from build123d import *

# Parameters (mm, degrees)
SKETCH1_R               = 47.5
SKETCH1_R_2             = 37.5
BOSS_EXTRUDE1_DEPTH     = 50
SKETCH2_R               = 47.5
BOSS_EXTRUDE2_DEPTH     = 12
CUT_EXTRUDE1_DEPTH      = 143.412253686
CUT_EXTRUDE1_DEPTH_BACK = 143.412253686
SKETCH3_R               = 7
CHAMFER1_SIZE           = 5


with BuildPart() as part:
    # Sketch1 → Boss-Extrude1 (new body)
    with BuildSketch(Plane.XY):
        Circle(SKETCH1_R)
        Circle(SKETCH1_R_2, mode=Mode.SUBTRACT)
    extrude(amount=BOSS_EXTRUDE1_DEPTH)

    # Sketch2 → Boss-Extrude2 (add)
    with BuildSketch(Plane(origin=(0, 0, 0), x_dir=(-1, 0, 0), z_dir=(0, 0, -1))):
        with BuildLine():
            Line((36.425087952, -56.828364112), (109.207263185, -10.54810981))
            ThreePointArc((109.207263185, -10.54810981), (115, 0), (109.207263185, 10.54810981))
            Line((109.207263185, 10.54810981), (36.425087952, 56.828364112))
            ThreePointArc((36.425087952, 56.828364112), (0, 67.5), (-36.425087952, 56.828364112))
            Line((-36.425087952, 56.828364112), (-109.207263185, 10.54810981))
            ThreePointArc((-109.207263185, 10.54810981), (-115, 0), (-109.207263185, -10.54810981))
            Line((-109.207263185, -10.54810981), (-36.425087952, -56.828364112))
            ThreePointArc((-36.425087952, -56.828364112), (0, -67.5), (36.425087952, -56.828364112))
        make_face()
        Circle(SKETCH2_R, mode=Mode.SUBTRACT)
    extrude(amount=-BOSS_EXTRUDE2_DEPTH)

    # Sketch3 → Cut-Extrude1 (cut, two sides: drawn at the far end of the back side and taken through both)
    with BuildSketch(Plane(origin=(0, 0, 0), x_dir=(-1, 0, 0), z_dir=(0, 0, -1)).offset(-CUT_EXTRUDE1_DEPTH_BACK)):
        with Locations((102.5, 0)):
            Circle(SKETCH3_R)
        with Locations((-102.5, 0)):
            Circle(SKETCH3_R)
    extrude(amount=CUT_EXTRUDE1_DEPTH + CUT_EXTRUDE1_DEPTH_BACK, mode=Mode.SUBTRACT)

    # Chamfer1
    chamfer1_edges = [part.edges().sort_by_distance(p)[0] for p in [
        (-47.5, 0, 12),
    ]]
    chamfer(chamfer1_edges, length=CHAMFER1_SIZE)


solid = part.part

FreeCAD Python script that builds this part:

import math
import FreeCAD as App
import Part
import Sketcher

V = App.Vector


def edges_at(feature, points):
    """Names of the edges that pass closest to the given points."""
    edges = feature.Shape.Edges
    near = lambda p: min(range(len(edges)), key=lambda i: edges[i].distToShape(Part.Vertex(*p))[0])
    return sorted({f"Edge{near(p) + 1}" for p in points})

doc = App.newDocument("Part")
body = doc.addObject("PartDesign::Body", "Body")

sketch1 = doc.addObject("Sketcher::SketchObject", "Sketch")
body.addObject(sketch1)
sketch1.AttachmentSupport = (doc.XY_Plane, [""])
sketch1.MapMode = "FlatFace"
sketch1.addGeometry(Part.Circle(V(0, 0, 0), V(0, 0, 1), 47.5), False)
sketch1.addGeometry(Part.Circle(V(0, 0, 0), V(0, 0, 1), 37.5), False)
sketch1.addConstraint(Sketcher.Constraint("Coincident", 0, 3, -1, 1))
sketch1.addConstraint(Sketcher.Constraint("Coincident", 1, 3, -1, 1))
sketch1.addConstraint(Sketcher.Constraint("Diameter", 0, 95.0))
sketch1.addConstraint(Sketcher.Constraint("Diameter", 1, 75.0))
pad1 = doc.addObject("PartDesign::Pad", "Pad")
body.addObject(pad1)
pad1.Profile = sketch1
pad1.Length = 50

sketch2 = doc.addObject("Sketcher::SketchObject", "Sketch001")
body.addObject(sketch2)
sketch2.AttachmentSupport = (doc.XY_Plane, [""])
sketch2.MapMode = "FlatFace"
sketch2.addGeometry(Part.LineSegment(V(-36.425088, -56.828364, 0), V(-109.207263, -10.54811, 0)), False)
sketch2.addGeometry(Part.ArcOfCircle(Part.Circle(V(-102.5, 0, 0), V(0, 0, 1), 12.5), math.radians(122.451198), math.radians(237.548802)), False)
sketch2.addGeometry(Part.LineSegment(V(-109.207263, 10.54811, 0), V(-36.425088, 56.828364, 0)), False)
sketch2.addGeometry(Part.ArcOfCircle(Part.Circle(V(0, 0, 0), V(0, 0, 1), 67.5), math.radians(57.341482), math.radians(122.658518)), False)
sketch2.addGeometry(Part.LineSegment(V(36.425088, 56.828364, 0), V(109.207263, 10.54811, 0)), False)
sketch2.addGeometry(Part.ArcOfCircle(Part.Circle(V(102.5, 0, 0), V(0, 0, 1), 12.5), math.radians(-57.548802), math.radians(57.548802)), False)
sketch2.addGeometry(Part.LineSegment(V(109.207263, -10.54811, 0), V(36.425088, -56.828364, 0)), False)
sketch2.addGeometry(Part.ArcOfCircle(Part.Circle(V(0, 0, 0), V(0, 0, 1), 67.5), math.radians(-122.658518), math.radians(-57.341482)), False)
sketch2.addGeometry(Part.Circle(V(0, 0, 0), V(0, 0, 1), 47.5), False)
sketch2.addConstraint(Sketcher.Constraint("Tangent", 0, 2, 1, 2))
sketch2.addConstraint(Sketcher.Constraint("Tangent", 1, 1, 2, 1))
sketch2.addConstraint(Sketcher.Constraint("Coincident", 2, 2, 3, 2))
sketch2.addConstraint(Sketcher.Constraint("Coincident", 3, 1, 4, 1))
sketch2.addConstraint(Sketcher.Constraint("Tangent", 4, 2, 5, 2))
sketch2.addConstraint(Sketcher.Constraint("Tangent", 5, 1, 6, 1))
sketch2.addConstraint(Sketcher.Constraint("Coincident", 6, 2, 7, 2))
sketch2.addConstraint(Sketcher.Constraint("Coincident", 7, 1, 0, 1))
sketch2.addConstraint(Sketcher.Constraint("Coincident", 3, 3, -1, 1))
sketch2.addConstraint(Sketcher.Constraint("Coincident", 7, 3, -1, 1))
sketch2.addConstraint(Sketcher.Constraint("Coincident", 8, 3, -1, 1))
sketch2.addConstraint(Sketcher.Constraint("Equal", 1, 5))
sketch2.addConstraint(Sketcher.Constraint("Equal", 3, 7))
sketch2.addConstraint(Sketcher.Constraint("Symmetric", 1, 3, 5, 3, -1, 1))
sketch2.addConstraint(Sketcher.Constraint("PointOnObject", 1, 3, -1))
sketch2.addConstraint(Sketcher.Constraint("Parallel", 0, 4))
sketch2.addConstraint(Sketcher.Constraint("Parallel", 2, 6))
sketch2.addConstraint(Sketcher.Constraint("Horizontal", 2, 2, 3, 1))
sketch2.addConstraint(Sketcher.Constraint("Diameter", 8, 95.0))
sketch2.addConstraint(Sketcher.Constraint("Radius", 1, 12.5))
sketch2.addConstraint(Sketcher.Constraint("Radius", 3, 67.5))
sketch2.addConstraint(Sketcher.Constraint("DistanceX", 1, 3, 5, 3, 205.0))
sketch2.addConstraint(Sketcher.Constraint("Distance", 0, 86.250258))
pad2 = doc.addObject("PartDesign::Pad", "Pad001")
body.addObject(pad2)
pad2.Profile = sketch2
pad2.Length = 12

sketch3 = doc.addObject("Sketcher::SketchObject", "Sketch002")
body.addObject(sketch3)
sketch3.AttachmentSupport = (doc.XY_Plane, [""])
sketch3.MapMode = "FlatFace"
sketch3.addGeometry(Part.Circle(V(-102.5, 0, 0), V(0, 0, 1), 7), False)
sketch3.addGeometry(Part.Circle(V(102.5, 0, 0), V(0, 0, 1), 7), False)
sketch3.addConstraint(Sketcher.Constraint("Equal", 0, 1))
sketch3.addConstraint(Sketcher.Constraint("Symmetric", 0, 3, 1, 3, -1, 1))
sketch3.addConstraint(Sketcher.Constraint("PointOnObject", 0, 3, -1))
sketch3.addConstraint(Sketcher.Constraint("Diameter", 0, 14.0))
sketch3.addConstraint(Sketcher.Constraint("DistanceX", 0, 3, 1, 3, 205.0))
pocket1 = doc.addObject("PartDesign::Pocket", "Pocket")
body.addObject(pocket1)
pocket1.Profile = sketch3
pocket1.Type = "ThroughAll"
pocket1.Midplane = True
doc.recompute()

chamfer = doc.addObject("PartDesign::Chamfer", "Chamfer")
body.addObject(chamfer)
chamfer.Base = (pocket1, edges_at(pocket1, [(-47.5, 0, 12)]))
chamfer.Size = 5

doc.recompute()
